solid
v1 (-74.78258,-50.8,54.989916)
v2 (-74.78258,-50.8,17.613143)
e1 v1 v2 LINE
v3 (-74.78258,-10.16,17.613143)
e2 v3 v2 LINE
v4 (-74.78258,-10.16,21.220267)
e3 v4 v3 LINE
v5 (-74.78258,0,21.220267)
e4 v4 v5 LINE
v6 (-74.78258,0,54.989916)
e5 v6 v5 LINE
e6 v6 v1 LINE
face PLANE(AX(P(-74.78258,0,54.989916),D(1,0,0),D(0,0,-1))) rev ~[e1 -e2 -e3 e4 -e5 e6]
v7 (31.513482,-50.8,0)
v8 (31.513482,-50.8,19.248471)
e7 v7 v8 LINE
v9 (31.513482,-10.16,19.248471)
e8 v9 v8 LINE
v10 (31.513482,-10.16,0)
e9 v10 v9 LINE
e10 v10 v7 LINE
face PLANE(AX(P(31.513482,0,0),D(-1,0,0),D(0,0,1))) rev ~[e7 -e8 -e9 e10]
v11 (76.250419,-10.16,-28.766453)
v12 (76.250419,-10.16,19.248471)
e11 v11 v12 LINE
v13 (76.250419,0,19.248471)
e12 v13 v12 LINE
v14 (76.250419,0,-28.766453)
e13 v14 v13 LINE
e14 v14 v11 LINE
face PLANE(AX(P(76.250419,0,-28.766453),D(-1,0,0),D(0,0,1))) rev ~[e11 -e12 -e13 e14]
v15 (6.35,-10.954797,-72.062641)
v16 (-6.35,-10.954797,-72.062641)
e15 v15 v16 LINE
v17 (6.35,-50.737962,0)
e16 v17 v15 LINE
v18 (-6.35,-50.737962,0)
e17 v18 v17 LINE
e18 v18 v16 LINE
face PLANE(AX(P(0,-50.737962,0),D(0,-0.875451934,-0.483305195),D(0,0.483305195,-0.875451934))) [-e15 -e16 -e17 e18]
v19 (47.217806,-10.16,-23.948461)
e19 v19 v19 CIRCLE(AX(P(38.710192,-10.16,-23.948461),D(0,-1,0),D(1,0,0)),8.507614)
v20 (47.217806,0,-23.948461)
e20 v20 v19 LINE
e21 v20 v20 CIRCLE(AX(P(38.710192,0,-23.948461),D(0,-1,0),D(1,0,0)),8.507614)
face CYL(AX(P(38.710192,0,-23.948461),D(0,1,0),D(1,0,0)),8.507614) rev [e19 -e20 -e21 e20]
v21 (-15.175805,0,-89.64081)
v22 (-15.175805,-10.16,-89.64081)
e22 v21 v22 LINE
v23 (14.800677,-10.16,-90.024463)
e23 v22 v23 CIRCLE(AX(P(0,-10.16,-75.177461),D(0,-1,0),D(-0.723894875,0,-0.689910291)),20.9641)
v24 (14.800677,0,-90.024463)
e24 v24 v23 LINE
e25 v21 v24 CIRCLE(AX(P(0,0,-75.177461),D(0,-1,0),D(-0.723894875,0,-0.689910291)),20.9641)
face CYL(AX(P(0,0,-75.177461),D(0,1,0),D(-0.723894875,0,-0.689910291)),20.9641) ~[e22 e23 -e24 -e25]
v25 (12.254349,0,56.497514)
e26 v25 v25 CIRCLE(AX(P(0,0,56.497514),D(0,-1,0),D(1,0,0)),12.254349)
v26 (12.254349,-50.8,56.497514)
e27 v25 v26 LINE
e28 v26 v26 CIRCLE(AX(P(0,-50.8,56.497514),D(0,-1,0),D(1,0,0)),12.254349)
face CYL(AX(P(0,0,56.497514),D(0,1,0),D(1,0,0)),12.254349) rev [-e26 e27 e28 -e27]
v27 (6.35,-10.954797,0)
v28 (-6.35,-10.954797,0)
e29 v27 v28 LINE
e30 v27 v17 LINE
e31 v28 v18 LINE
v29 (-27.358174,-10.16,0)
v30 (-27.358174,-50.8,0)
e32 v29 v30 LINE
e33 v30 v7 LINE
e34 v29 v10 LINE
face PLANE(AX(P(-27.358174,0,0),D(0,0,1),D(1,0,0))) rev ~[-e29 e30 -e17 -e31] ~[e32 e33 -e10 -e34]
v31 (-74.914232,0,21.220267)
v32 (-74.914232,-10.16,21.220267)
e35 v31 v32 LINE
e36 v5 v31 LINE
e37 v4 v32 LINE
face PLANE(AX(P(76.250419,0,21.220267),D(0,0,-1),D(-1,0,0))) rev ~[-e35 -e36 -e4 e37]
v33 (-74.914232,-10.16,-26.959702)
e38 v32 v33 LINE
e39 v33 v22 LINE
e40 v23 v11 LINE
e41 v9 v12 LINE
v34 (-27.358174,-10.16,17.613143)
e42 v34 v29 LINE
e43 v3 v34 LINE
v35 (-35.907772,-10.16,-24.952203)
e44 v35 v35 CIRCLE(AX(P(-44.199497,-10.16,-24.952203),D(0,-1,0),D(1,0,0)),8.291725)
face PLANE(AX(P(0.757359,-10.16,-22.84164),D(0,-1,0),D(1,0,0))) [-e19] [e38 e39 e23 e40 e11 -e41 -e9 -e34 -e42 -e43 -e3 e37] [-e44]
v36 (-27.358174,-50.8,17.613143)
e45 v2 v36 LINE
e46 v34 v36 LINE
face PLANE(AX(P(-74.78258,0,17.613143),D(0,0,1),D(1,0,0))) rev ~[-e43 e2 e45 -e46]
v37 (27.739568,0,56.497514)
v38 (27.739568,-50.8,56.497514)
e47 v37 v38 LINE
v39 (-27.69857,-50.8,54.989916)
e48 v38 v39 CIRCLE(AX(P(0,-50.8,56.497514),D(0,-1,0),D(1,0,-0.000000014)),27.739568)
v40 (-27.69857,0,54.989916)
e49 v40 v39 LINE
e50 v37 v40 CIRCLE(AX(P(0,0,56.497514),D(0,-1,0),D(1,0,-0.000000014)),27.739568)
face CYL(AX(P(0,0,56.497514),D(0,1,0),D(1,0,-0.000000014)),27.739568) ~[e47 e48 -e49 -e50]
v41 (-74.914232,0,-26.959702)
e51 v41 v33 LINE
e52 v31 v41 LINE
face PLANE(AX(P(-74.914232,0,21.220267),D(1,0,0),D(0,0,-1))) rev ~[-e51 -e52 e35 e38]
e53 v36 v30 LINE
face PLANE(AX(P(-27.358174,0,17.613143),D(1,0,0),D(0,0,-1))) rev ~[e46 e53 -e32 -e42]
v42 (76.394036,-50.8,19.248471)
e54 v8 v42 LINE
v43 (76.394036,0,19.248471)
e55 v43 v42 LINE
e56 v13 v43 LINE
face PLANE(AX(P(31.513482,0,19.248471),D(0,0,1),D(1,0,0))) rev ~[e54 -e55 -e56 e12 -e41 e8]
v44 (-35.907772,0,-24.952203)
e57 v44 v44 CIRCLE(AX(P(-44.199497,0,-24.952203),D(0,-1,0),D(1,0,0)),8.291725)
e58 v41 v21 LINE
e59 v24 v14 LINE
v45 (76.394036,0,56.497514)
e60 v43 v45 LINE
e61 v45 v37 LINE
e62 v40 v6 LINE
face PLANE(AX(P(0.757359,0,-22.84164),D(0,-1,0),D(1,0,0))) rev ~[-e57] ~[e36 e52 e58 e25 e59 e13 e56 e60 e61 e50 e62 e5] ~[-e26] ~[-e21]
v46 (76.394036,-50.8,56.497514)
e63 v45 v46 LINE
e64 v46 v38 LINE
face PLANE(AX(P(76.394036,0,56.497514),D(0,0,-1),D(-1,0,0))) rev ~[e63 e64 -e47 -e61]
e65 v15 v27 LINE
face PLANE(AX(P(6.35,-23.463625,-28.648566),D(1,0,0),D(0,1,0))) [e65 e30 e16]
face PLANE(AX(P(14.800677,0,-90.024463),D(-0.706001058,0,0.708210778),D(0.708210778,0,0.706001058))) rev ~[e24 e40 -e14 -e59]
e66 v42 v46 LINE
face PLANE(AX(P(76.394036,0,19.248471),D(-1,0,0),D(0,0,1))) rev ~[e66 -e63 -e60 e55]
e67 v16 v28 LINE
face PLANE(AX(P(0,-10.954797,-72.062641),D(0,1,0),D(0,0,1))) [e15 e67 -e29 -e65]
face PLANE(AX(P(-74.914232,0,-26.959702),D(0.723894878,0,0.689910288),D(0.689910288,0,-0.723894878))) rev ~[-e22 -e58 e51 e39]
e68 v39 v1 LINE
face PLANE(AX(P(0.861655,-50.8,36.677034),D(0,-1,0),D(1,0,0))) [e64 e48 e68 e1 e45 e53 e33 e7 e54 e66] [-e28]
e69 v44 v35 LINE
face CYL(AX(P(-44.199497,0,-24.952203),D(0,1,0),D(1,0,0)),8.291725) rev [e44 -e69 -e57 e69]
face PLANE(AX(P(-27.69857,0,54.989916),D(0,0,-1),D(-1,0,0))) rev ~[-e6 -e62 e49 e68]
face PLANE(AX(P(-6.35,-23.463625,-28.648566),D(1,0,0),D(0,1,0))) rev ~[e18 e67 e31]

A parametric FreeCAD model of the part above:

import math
import FreeCAD as App
import Part
import Sketcher
Q = App.Units.Quantity


def add_polygon(sketch, points):
    """Adds a closed chain of lines whose ends are joined by coincident constraints."""
    first, n = sketch.GeometryCount, len(points)
    for a, b in zip(points, points[1:] + points[:1]):
        sketch.addGeometry(Part.LineSegment(App.Vector(*a, 0), App.Vector(*b, 0)), False)
    for i in range(n):
        sketch.addConstraint(Sketcher.Constraint("Coincident", first + i, 2, first + (i + 1) % n, 1))

doc = App.newDocument("Part")
params = doc.addObject("Spreadsheet::Sheet", "Params")
for row, (alias, value) in enumerate([
    ("pad1_length", "2 in"),
    ("pad2_length", "0.4 in"),
    ("pad3_length", "0.5 in"),
], start=1):
    params.set(f"A{row}", alias)
    params.set(f"B{row}", "=" + value)
    params.setAlias(f"B{row}", alias)

body = doc.addObject("PartDesign::Body", "Body")

# Sketch on XZ plane
sketch1 = body.newObject("Sketcher::SketchObject", "Sketch")
sketch1.AttachmentSupport = (doc.getObject("XZ_Plane"), [""])
sketch1.MapMode = "FlatFace"
sketch1.addGeometry(Part.LineSegment(App.Vector(76, 56, 0), App.Vector(28, 56, 0)), False)
sketch1.addGeometry(Part.ArcOfCircle(Part.Circle(App.Vector(0, 56, 0), App.Vector(0, 0, 1), 28), math.radians(0), math.radians(183)), False)
sketch1.addGeometry(Part.LineSegment(App.Vector(-28, 55, 0), App.Vector(-75, 55, 0)), False)
sketch1.addGeometry(Part.LineSegment(App.Vector(-75, 55, 0), App.Vector(-75, 18, 0)), False)
sketch1.addGeometry(Part.LineSegment(App.Vector(-75, 18, 0), App.Vector(-27, 18, 0)), False)
sketch1.addGeometry(Part.LineSegment(App.Vector(-27, 18, 0), App.Vector(-27, 0, 0)), False)
sketch1.addGeometry(Part.LineSegment(App.Vector(-27, 0, 0), App.Vector(32, 0, 0)), False)
sketch1.addGeometry(Part.LineSegment(App.Vector(32, 0, 0), App.Vector(32, 19, 0)), False)
sketch1.addGeometry(Part.LineSegment(App.Vector(32, 19, 0), App.Vector(76, 19, 0)), False)
sketch1.addGeometry(Part.LineSegment(App.Vector(76, 19, 0), App.Vector(76, 56, 0)), False)
sketch1.addGeometry(Part.Circle(App.Vector(0, 56, 0), App.Vector(0, 0, 1), 12), False)
sketch1.addConstraint(Sketcher.Constraint("Coincident", 0, 2, 1, 1))
sketch1.addConstraint(Sketcher.Constraint("Coincident", 1, 2, 2, 1))
sketch1.addConstraint(Sketcher.Constraint("Coincident", 2, 2, 3, 1))
sketch1.addConstraint(Sketcher.Constraint("Coincident", 3, 2, 4, 1))
sketch1.addConstraint(Sketcher.Constraint("Coincident", 4, 2, 5, 1))
sketch1.addConstraint(Sketcher.Constraint("Coincident", 5, 2, 6, 1))
sketch1.addConstraint(Sketcher.Constraint("Coincident", 6, 2, 7, 1))
sketch1.addConstraint(Sketcher.Constraint("Coincident", 7, 2, 8, 1))
sketch1.addConstraint(Sketcher.Constraint("Coincident", 8, 2, 9, 1))
sketch1.addConstraint(Sketcher.Constraint("Coincident", 9, 2, 0, 1))
sketch1.addConstraint(Sketcher.Constraint("Horizontal", 0))
sketch1.addConstraint(Sketcher.Constraint("Horizontal", 2))
sketch1.addConstraint(Sketcher.Constraint("Vertical", 3))
sketch1.addConstraint(Sketcher.Constraint("Horizontal", 4))
sketch1.addConstraint(Sketcher.Constraint("Vertical", 5))
sketch1.addConstraint(Sketcher.Constraint("Horizontal", 6))
sketch1.addConstraint(Sketcher.Constraint("Vertical", 7))
sketch1.addConstraint(Sketcher.Constraint("Horizontal", 8))
sketch1.addConstraint(Sketcher.Constraint("Vertical", 9))
sketch1.addConstraint(Sketcher.Constraint("Coincident", 10, 3, 1, 3))
sketch1.addConstraint(Sketcher.Constraint("PointOnObject", 1, 3, -2))
sketch1.addConstraint(Sketcher.Constraint("PointOnObject", 5, 2, -1))
sketch1.addConstraint(Sketcher.Constraint("Horizontal", 10, 3, 0, 2))
sketch1.addConstraint(Sketcher.Constraint("Radius", 1, 27.739568))
sketch1.addConstraint(Sketcher.Constraint("Diameter", 10, 24.508698))
sketch1.addConstraint(Sketcher.Constraint("DistanceX", 2, 2, 2, 1, 47.08401))
sketch1.addConstraint(Sketcher.Constraint("DistanceY", 7, 1, 7, 2, 19.248471))
sketch1.addConstraint(Sketcher.Constraint("DistanceY", 1, 2, 1, 3, 1.507598))
sketch1.addConstraint(Sketcher.Constraint("DistanceX", 0, 2, 0, 1, 48.654468))
sketch1.addConstraint(Sketcher.Constraint("DistanceX", 4, 1, 4, 2, 47.424406))
sketch1.addConstraint(Sketcher.Constraint("DistanceX", 6, 1, 6, 2, 58.871656))
sketch1.addConstraint(Sketcher.Constraint("DistanceY", 3, 2, 3, 1, 37.376773))
sketch1.addConstraint(Sketcher.Constraint("DistanceY", 5, 2, 5, 1, 17.613143))
pad1 = body.newObject("PartDesign::Pad", "Pad")
pad1.Profile = sketch1
pad1.setExpression("Length", "Params.pad1_length")

# Sketch on XZ plane
sketch2 = body.newObject("Sketcher::SketchObject", "Sketch001")
sketch2.AttachmentSupport = (doc.getObject("XZ_Plane"), [""])
sketch2.MapMode = "FlatFace"
sketch2.addGeometry(Part.LineSegment(App.Vector(-75, -27, 0), App.Vector(-15, -90, 0)), False)
sketch2.addGeometry(Part.ArcOfCircle(Part.Circle(App.Vector(0, -75, 0), App.Vector(0, 0, 1), 21), math.radians(-136), math.radians(-45)), False)
sketch2.addGeometry(Part.LineSegment(App.Vector(15, -90, 0), App.Vector(76, -29, 0)), False)
sketch2.addGeometry(Part.LineSegment(App.Vector(76, -29, 0), App.Vector(76, 21, 0)), False)
sketch2.addGeometry(Part.LineSegment(App.Vector(76, 21, 0), App.Vector(-75, 21, 0)), False)
sketch2.addGeometry(Part.LineSegment(App.Vector(-75, 21, 0), App.Vector(-75, -27, 0)), False)
sketch2.addGeometry(Part.Circle(App.Vector(-44, -25, 0), App.Vector(0, 0, 1), 8), False)
sketch2.addGeometry(Part.Circle(App.Vector(39, -24, 0), App.Vector(0, 0, 1), 9), False)
sketch2.addConstraint(Sketcher.Constraint("Tangent", 0, 2, 1, 1))
sketch2.addConstraint(Sketcher.Constraint("Tangent", 1, 2, 2, 1))
sketch2.addConstraint(Sketcher.Constraint("Coincident", 2, 2, 3, 1))
sketch2.addConstraint(Sketcher.Constraint("Coincident", 3, 2, 4, 1))
sketch2.addConstraint(Sketcher.Constraint("Coincident", 4, 2, 5, 1))
sketch2.addConstraint(Sketcher.Constraint("Coincident", 5, 2, 0, 1))
sketch2.addConstraint(Sketcher.Constraint("Vertical", 3))
sketch2.addConstraint(Sketcher.Constraint("Horizontal", 4))
sketch2.addConstraint(Sketcher.Constraint("Vertical", 5))
sketch2.addConstraint(Sketcher.Constraint("PointOnObject", 1, 3, -2))
sketch2.addConstraint(Sketcher.Constraint("Radius", 1, 20.9641))
sketch2.addConstraint(Sketcher.Constraint("Diameter", 6, 16.58345))
sketch2.addConstraint(Sketcher.Constraint("Diameter", 7, 17.015228))
sketch2.addConstraint(Sketcher.Constraint("DistanceY", 1, 2, 6, 3, Q("2.5619 in")))
sketch2.addConstraint(Sketcher.Constraint("DistanceX", 4, 2, 4, 1, 151.164651))
sketch2.addConstraint(Sketcher.Constraint("DistanceY", 3, 1, 3, 2, 49.98672))
sketch2.addConstraint(Sketcher.Constraint("DistanceY", 5, 2, 5, 1, 48.179969))
sketch2.addConstraint(Sketcher.Constraint("DistanceY", 5, 2, -1, 1, 26.959702))
sketch2.addConstraint(Sketcher.Constraint("DistanceY", 1, 3, 7, 3, 51.229))
sketch2.addConstraint(Sketcher.Constraint("DistanceY", 1, 2, 1, 3, 14.847002))
sketch2.addConstraint(Sketcher.Constraint("DistanceY", 5, 2, 6, 3, 2.007499))
sketch2.addConstraint(Sketcher.Constraint("DistanceX", 6, 3, 7, 3, 82.909689))
sketch2.addConstraint(Sketcher.Constraint("DistanceX", 6, 3, -1, 1, 44.199497))
pad2 = body.newObject("PartDesign::Pad", "Pad001")
pad2.Profile = sketch2
pad2.setExpression("Length", "Params.pad2_length")

# Sketch on YZ plane
sketch3 = body.newObject("Sketcher::SketchObject", "Sketch002")
sketch3.AttachmentSupport = (doc.getObject("YZ_Plane"), [""])
sketch3.MapMode = "FlatFace"
add_polygon(sketch3, [(-11, 0), (-51, 0), (-11, -72)])  # lines 0-2
sketch3.addConstraint(Sketcher.Constraint("Horizontal", 0))
sketch3.addConstraint(Sketcher.Constraint("Vertical", 2))
sketch3.addConstraint(Sketcher.Constraint("PointOnObject", 0, 2, -1))
sketch3.addConstraint(Sketcher.Constraint("DistanceY", 2, 1, 2, 2, 72.062641))
sketch3.addConstraint(Sketcher.Constraint("Distance", 1, 82.314789))
sketch3.addConstraint(Sketcher.Constraint("DistanceX", 0, 2, -1, 1, 50.737962))
pad3 = body.newObject("PartDesign::Pad", "Pad002")
pad3.Profile = sketch3
pad3.setExpression("Length", "Params.pad3_length")
pad3.Midplane = True

doc.recompute()
